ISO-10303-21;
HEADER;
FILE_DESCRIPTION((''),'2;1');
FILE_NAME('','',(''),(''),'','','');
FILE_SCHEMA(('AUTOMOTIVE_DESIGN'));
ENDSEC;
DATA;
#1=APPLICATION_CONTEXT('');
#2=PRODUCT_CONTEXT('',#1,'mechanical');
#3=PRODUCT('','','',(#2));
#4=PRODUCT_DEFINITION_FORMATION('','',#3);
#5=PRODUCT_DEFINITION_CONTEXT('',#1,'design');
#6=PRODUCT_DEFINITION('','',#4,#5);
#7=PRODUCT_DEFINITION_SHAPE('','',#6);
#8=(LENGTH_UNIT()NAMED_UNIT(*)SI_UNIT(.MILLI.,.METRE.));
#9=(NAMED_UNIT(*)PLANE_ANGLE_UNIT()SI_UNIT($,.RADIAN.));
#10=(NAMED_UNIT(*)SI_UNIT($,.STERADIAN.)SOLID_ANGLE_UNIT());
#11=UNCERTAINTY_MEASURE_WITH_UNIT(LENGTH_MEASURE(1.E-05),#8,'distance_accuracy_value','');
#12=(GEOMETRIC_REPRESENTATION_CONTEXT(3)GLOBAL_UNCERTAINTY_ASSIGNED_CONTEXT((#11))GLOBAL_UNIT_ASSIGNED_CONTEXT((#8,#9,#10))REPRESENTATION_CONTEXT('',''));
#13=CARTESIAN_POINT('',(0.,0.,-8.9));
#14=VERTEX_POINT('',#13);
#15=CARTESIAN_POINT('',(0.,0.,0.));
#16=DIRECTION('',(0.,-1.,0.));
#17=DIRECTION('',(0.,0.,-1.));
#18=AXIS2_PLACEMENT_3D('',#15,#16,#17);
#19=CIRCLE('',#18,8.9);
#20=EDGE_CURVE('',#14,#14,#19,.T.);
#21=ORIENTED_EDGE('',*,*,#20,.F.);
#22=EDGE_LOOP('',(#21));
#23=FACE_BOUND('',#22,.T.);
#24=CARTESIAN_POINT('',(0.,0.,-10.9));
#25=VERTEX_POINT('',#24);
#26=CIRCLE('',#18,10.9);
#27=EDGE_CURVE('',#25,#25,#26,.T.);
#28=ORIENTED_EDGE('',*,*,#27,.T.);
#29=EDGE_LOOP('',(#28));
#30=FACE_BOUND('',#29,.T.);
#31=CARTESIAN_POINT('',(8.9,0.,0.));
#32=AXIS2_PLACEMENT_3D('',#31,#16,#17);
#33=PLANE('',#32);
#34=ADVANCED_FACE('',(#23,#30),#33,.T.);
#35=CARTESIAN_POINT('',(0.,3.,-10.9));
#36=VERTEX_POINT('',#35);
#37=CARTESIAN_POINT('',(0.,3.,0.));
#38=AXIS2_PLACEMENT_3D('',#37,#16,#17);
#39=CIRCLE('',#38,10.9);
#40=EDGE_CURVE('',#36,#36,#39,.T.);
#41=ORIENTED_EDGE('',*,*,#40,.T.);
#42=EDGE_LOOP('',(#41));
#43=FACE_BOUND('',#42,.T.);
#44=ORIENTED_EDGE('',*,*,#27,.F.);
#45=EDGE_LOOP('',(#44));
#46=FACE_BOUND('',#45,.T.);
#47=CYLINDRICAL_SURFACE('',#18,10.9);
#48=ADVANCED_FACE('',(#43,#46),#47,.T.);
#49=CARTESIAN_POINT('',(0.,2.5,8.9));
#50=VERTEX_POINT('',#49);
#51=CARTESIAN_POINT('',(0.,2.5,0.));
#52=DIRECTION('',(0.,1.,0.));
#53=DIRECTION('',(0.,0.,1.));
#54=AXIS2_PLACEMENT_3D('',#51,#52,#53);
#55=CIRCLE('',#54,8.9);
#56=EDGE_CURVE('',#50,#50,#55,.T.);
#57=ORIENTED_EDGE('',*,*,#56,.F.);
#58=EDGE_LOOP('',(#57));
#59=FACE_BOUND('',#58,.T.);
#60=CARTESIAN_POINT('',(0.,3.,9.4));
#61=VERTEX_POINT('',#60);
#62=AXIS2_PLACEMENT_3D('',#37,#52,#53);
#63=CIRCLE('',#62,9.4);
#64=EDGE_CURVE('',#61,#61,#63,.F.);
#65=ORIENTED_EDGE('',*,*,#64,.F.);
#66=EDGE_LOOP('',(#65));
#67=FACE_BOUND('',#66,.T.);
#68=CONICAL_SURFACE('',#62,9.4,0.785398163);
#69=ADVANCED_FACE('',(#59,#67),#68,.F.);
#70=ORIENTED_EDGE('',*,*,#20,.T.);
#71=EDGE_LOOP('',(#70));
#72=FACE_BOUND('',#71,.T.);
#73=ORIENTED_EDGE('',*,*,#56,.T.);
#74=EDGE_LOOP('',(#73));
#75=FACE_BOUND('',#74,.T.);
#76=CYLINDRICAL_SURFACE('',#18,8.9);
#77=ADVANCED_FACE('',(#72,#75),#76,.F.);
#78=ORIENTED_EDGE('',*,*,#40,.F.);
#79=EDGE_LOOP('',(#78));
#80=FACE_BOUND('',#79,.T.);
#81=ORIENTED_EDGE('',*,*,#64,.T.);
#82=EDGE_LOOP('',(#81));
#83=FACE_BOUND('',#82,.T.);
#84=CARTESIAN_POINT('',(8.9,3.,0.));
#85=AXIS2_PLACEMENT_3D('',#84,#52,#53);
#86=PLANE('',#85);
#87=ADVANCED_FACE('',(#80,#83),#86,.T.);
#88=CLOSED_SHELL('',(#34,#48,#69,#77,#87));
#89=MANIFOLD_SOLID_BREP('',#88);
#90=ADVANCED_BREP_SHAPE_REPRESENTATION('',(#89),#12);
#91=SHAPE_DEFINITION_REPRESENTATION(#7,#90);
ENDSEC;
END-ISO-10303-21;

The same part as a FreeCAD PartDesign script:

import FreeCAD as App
import Part
import Sketcher
Q = App.Units.Quantity


def edges_at(feature, points):
    """Names of the edges that pass closest to the given points."""
    edges = feature.Shape.Edges
    near = lambda p: min(range(len(edges)), key=lambda i: edges[i].distToShape(Part.Vertex(*p))[0])
    return sorted({f"Edge{near(p) + 1}" for p in points})


def add_polygon(sketch, points):
    """Adds a closed chain of lines whose ends are joined by coincident constraints."""
    first, n = sketch.GeometryCount, len(points)
    for a, b in zip(points, points[1:] + points[:1]):
        sketch.addGeometry(Part.LineSegment(App.Vector(*a, 0), App.Vector(*b, 0)), False)
    for i in range(n):
        sketch.addConstraint(Sketcher.Constraint("Coincident", first + i, 2, first + (i + 1) % n, 1))

doc = App.newDocument("Part")
params = doc.addObject("Spreadsheet::Sheet", "Params")
for row, (alias, value) in enumerate([
    ("sketch1_width", "2 mm"),
    ("sketch1_height", "3 mm"),
    ("revolution_angle", "360 deg"),
    ("chamfer_size", "0.5 mm"),
], start=1):
    params.set(f"A{row}", alias)
    params.set(f"B{row}", "=" + value)
    params.setAlias(f"B{row}", alias)

body = doc.addObject("PartDesign::Body", "Body")

# Sketch on XY plane
sketch1 = body.newObject("Sketcher::SketchObject", "Sketch")
sketch1.AttachmentSupport = (doc.getObject("XY_Plane"), [""])
sketch1.MapMode = "FlatFace"
add_polygon(sketch1, [(8.9, 3), (8.9, 0), (10.9, 0), (10.9, 3)])  # lines 0-3
sketch1.addConstraint([
    Sketcher.Constraint("Vertical", 0),
    Sketcher.Constraint("Horizontal", 1),
    Sketcher.Constraint("Vertical", 2),
    Sketcher.Constraint("Horizontal", 3),
    Sketcher.Constraint("PointOnObject", 0, 2, -1),
    Sketcher.Constraint("DistanceX", 1, 1, 1, 2, Q("2 mm")),
    Sketcher.Constraint("DistanceY", 0, 2, 0, 1, Q("3 mm")),
    Sketcher.Constraint("DistanceX", -1, 1, 0, 2, Q("8.9 mm")),
])
sketch1.setExpression("Constraints[9]", "Params.sketch1_width")
sketch1.setExpression("Constraints[10]", "Params.sketch1_height")
revolution = body.newObject("PartDesign::Revolution", "Revolution")
revolution.Profile = sketch1
revolution.ReferenceAxis = (sketch1, ["V_Axis"])
revolution.setExpression("Angle", "Params.revolution_angle")
doc.recompute()

chamfer = body.newObject("PartDesign::Chamfer", "Chamfer")
chamfer.Base = (revolution, edges_at(revolution, [(0, 3, 8.9)]))
chamfer.setExpression("Size", "Params.chamfer_size")

doc.recompute()
